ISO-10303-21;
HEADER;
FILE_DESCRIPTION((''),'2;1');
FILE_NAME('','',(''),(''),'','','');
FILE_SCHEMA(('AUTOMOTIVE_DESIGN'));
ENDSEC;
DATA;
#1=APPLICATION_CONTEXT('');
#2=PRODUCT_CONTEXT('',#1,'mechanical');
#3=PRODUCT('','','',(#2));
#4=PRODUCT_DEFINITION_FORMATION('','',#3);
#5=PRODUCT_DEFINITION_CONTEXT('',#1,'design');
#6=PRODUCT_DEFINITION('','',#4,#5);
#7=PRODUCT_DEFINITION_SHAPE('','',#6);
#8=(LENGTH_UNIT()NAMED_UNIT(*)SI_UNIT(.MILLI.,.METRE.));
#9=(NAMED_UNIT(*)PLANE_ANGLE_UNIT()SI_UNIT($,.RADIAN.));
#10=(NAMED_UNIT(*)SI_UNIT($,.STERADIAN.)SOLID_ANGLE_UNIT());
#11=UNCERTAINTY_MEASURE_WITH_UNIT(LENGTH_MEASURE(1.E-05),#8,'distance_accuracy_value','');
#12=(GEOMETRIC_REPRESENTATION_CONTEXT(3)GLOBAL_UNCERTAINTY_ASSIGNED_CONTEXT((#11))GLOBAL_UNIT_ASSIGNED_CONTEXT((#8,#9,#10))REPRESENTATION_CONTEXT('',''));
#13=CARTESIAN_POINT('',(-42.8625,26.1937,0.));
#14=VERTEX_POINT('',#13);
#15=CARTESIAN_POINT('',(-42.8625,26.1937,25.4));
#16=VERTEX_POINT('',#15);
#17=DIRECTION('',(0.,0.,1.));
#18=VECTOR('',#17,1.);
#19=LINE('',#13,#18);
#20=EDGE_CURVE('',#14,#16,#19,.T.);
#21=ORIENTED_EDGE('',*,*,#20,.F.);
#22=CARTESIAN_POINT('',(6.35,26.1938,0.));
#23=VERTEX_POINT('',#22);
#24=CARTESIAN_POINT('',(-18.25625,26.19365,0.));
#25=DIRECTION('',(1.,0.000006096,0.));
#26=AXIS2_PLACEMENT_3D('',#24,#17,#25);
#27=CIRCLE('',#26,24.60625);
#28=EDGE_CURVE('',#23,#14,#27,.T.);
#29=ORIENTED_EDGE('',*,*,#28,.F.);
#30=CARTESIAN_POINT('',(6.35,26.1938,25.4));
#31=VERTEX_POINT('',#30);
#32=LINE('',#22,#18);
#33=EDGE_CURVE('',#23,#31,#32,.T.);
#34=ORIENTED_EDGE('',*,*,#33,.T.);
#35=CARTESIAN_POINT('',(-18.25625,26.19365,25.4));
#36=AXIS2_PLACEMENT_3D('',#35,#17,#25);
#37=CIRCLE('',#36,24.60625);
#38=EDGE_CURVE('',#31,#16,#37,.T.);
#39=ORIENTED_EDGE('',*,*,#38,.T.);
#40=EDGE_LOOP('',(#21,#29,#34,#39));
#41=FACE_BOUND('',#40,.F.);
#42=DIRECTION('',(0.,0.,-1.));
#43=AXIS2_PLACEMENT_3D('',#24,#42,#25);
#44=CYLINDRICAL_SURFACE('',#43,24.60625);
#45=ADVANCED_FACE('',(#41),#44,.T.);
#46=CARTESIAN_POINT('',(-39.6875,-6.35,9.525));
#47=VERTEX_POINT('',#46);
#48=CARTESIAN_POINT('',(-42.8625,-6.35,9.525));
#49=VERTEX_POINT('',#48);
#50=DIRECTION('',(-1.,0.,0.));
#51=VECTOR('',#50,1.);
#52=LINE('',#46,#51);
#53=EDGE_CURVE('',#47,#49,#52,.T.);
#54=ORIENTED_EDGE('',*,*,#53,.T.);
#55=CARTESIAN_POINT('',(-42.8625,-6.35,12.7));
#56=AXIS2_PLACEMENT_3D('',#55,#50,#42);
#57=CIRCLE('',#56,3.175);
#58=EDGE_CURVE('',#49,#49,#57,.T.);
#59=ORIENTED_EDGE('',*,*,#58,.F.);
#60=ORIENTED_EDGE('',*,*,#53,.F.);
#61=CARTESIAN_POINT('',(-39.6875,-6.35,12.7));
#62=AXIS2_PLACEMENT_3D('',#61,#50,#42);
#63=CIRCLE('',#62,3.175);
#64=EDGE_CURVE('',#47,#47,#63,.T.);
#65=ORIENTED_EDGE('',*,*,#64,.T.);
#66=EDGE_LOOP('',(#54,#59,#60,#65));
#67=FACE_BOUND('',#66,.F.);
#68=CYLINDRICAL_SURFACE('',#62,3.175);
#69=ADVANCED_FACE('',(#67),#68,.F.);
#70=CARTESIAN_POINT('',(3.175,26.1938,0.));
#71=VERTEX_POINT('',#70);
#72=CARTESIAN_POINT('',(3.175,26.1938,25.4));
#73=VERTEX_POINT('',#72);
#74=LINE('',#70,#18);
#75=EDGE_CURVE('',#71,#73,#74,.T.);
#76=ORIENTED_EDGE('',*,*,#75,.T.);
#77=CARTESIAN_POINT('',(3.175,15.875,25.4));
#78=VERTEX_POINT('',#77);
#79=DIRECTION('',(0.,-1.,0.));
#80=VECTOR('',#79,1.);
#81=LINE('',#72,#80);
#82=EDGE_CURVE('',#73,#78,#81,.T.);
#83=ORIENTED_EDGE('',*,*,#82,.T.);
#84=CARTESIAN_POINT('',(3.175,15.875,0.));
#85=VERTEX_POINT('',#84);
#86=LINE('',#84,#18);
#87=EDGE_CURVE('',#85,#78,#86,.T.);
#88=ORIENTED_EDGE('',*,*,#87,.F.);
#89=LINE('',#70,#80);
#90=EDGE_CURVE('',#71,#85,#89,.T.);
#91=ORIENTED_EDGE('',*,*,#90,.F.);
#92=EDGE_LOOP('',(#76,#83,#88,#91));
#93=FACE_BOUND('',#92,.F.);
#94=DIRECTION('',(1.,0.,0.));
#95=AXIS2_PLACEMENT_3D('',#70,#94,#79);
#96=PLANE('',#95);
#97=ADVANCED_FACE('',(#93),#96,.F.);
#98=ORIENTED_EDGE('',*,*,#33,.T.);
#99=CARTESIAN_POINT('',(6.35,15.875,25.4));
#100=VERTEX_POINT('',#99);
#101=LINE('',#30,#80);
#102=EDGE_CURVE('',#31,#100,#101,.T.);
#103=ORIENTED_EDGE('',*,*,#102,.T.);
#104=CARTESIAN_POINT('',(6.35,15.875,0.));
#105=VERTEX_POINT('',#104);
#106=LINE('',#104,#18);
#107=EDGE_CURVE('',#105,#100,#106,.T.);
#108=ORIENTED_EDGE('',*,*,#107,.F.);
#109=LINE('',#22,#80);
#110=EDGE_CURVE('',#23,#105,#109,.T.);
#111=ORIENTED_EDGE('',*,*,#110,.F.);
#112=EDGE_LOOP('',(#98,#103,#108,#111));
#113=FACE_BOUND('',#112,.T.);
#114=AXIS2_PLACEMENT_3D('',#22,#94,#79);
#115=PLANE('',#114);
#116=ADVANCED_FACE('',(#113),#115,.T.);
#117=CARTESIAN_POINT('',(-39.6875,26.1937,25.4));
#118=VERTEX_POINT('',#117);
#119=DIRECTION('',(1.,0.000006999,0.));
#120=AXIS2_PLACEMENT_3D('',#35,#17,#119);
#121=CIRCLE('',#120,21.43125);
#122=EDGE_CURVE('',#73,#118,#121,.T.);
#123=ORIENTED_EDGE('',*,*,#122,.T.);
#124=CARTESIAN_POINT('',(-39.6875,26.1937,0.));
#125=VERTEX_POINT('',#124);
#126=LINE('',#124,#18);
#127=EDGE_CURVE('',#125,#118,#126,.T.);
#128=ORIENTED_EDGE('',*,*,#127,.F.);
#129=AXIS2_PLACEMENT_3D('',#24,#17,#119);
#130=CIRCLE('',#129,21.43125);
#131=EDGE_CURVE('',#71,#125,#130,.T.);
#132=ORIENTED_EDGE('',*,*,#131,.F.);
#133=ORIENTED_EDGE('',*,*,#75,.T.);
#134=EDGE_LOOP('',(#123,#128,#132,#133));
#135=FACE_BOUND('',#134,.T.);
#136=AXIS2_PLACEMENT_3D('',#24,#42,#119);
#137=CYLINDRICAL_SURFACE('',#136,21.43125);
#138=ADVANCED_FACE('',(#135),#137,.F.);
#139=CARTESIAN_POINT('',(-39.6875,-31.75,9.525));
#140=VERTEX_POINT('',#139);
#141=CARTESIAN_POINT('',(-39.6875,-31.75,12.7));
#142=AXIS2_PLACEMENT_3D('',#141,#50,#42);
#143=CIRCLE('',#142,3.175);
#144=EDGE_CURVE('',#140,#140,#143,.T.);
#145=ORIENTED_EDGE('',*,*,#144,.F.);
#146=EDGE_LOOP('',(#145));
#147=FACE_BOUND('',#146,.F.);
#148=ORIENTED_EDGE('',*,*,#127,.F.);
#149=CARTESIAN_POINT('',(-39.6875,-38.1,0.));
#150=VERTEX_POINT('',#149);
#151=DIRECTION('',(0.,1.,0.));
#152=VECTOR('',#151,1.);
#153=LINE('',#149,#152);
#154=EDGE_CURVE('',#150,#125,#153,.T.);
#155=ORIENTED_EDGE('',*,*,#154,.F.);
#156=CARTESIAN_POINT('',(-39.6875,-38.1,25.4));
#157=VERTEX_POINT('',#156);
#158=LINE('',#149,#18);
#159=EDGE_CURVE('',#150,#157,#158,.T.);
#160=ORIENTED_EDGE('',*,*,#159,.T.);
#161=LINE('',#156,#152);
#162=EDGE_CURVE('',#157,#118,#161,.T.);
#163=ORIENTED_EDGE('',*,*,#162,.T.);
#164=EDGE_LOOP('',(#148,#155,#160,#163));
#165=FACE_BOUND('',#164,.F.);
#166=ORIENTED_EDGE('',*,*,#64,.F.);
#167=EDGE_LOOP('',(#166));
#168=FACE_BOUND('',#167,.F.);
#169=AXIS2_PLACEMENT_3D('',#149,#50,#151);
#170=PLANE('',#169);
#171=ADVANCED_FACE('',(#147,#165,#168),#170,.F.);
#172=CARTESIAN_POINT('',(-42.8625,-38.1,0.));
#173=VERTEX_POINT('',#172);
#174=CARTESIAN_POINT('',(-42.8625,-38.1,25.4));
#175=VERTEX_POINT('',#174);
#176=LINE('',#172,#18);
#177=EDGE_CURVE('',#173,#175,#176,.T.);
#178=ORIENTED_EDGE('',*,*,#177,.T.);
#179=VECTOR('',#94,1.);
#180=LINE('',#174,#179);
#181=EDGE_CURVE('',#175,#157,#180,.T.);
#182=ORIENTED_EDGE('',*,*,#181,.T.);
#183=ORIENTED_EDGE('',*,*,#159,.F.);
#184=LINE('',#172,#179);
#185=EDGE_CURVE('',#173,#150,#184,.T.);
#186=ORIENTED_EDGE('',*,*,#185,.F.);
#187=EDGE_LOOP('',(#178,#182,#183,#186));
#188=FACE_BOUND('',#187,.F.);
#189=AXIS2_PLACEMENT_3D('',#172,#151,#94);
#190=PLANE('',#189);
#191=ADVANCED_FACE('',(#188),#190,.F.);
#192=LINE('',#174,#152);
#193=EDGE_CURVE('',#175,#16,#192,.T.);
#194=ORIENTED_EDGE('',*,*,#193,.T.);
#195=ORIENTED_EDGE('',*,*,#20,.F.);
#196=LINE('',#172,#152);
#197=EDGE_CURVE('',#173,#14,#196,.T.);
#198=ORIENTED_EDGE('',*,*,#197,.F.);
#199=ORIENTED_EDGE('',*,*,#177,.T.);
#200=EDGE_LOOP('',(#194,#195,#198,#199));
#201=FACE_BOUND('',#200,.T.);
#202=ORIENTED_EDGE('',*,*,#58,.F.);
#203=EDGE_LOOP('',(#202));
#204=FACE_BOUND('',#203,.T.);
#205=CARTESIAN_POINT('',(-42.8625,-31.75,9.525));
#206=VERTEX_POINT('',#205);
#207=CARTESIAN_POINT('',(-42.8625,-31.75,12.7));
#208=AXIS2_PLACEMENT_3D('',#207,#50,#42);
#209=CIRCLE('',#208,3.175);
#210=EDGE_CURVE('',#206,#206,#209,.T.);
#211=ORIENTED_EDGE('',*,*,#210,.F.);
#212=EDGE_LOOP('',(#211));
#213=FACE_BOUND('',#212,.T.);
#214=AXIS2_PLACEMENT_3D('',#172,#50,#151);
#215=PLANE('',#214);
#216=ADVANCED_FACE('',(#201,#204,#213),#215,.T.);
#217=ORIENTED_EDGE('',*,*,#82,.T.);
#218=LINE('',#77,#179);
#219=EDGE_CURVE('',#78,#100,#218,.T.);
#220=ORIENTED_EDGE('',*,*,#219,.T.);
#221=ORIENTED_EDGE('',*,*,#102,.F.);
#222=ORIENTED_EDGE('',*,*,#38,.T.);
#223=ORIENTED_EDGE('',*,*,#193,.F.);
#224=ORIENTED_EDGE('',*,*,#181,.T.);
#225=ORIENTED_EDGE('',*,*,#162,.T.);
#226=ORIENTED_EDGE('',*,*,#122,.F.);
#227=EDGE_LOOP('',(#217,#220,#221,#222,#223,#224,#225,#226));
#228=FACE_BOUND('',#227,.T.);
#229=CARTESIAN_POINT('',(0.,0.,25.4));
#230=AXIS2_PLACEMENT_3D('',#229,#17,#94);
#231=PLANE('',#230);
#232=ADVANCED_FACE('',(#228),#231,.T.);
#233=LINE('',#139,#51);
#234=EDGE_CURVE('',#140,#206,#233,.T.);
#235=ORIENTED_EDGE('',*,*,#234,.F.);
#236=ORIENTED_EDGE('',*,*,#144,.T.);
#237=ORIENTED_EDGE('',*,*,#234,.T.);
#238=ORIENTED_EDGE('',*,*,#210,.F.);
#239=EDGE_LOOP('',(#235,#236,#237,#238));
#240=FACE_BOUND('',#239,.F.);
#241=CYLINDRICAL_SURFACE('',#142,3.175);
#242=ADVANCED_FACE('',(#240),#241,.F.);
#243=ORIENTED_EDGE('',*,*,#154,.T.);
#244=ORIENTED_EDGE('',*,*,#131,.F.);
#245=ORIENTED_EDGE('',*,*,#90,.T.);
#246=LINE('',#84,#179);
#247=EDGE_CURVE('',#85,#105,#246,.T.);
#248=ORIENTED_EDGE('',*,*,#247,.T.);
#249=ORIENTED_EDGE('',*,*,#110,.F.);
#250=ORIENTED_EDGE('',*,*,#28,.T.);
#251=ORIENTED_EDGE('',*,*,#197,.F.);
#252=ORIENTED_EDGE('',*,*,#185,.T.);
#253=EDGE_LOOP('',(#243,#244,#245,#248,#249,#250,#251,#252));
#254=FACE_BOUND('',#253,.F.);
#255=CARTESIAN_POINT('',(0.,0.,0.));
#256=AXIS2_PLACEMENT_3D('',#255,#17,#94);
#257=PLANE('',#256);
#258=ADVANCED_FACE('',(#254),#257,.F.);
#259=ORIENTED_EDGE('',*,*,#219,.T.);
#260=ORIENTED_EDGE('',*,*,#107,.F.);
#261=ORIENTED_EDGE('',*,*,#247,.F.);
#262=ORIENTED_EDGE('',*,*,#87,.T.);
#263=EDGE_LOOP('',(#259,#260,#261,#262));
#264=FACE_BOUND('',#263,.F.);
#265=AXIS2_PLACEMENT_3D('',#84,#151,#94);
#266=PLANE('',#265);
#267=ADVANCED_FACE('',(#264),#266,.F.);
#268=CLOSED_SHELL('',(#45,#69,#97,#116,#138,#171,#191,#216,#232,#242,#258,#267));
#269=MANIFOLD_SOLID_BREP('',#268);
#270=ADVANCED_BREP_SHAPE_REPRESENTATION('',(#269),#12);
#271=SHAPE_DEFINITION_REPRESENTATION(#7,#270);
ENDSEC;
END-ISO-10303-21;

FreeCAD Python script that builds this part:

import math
import FreeCAD as App
import Part
import Sketcher
Q = App.Units.Quantity

doc = App.newDocument("Part")
body = doc.addObject("PartDesign::Body", "Body")

# Sketch on XY plane
sketch1 = body.newObject("Sketcher::SketchObject", "Sketch")
sketch1.AttachmentSupport = (doc.getObject("XY_Plane"), [""])
sketch1.MapMode = "FlatFace"
sketch1.addGeometry([
    Part.LineSegment(App.Vector(-42.9, 26.2, 0), App.Vector(-42.9, -38.1, 0)),  # 0
    Part.LineSegment(App.Vector(-42.9, -38.1, 0), App.Vector(-39.7, -38.1, 0)),  # 1
    Part.LineSegment(App.Vector(-39.7, -38.1, 0), App.Vector(-39.7, 26.2, 0)),  # 2
    Part.ArcOfCircle(Part.Circle(App.Vector(-18.3, 26.2, 0), App.Vector(0, 0, 1), 21.4), math.radians(0), math.radians(180)),  # 3
    Part.LineSegment(App.Vector(3.2, 26.2, 0), App.Vector(3.2, 15.9, 0)),  # 4
    Part.LineSegment(App.Vector(3.2, 15.9, 0), App.Vector(6.3, 15.9, 0)),  # 5
    Part.LineSegment(App.Vector(6.3, 15.9, 0), App.Vector(6.3, 26.2, 0)),  # 6
    Part.ArcOfCircle(Part.Circle(App.Vector(-18.3, 26.2, 0), App.Vector(0, 0, 1), 24.6), math.radians(0), math.radians(180)),  # 7
], False)
sketch1.addConstraint([
    Sketcher.Constraint("Coincident", 0, 2, 1, 1),
    Sketcher.Constraint("Coincident", 1, 2, 2, 1),
    Sketcher.Constraint("Tangent", 2, 2, 3, 2),
    Sketcher.Constraint("Tangent", 3, 1, 4, 1),
    Sketcher.Constraint("Coincident", 4, 2, 5, 1),
    Sketcher.Constraint("Coincident", 5, 2, 6, 1),
    Sketcher.Constraint("Tangent", 6, 2, 7, 1),
    Sketcher.Constraint("Tangent", 7, 2, 0, 1),
    Sketcher.Constraint("Vertical", 0),
    Sketcher.Constraint("Horizontal", 1),
    Sketcher.Constraint("Vertical", 2),
    Sketcher.Constraint("Vertical", 4),
    Sketcher.Constraint("Horizontal", 5),
    Sketcher.Constraint("Vertical", 6),
    Sketcher.Constraint("Coincident", 7, 3, 3, 3),
    Sketcher.Constraint("Radius", 3, Q("0.843748 in")),
    Sketcher.Constraint("DistanceX", 1, 1, 1, 2, Q("0.125 in")),
    Sketcher.Constraint("DistanceX", -1, 1, 3, 1, Q("0.125 in")),
    Sketcher.Constraint("DistanceY", 0, 2, -1, 1, Q("1.5 in")),
    Sketcher.Constraint("DistanceY", 0, 2, 0, 1, Q("2.531248 in")),
    Sketcher.Constraint("DistanceY", 4, 2, 4, 1, Q("0.406252 in")),
])
pad1 = body.newObject("PartDesign::Pad", "Pad")
pad1.Profile = sketch1
pad1.Length = Q("1 in")

# Sketch on YZ plane
sketch2 = body.newObject("Sketcher::SketchObject", "Sketch001")
sketch2.AttachmentSupport = (doc.getObject("YZ_Plane"), [""])
sketch2.MapMode = "FlatFace"
sketch2.AttachmentOffset = App.Placement(App.Vector(0, 0, -1.5625 * 25.4), App.Rotation())
sketch2.addGeometry(Part.Circle(App.Vector(-31.8, 12.7, 0), App.Vector(0, 0, 1), 3.2), False)
sketch2.addConstraint([
    Sketcher.Constraint("Diameter", 0, Q("0.25 in")),
    Sketcher.Constraint("DistanceY", -1, 1, 0, 3, Q("0.5 in")),
    Sketcher.Constraint("DistanceX", 0, 3, -1, 1, Q("1.25 in")),
])
doc.recompute()
hole = body.newObject("PartDesign::Hole", "Hole")
hole.Profile = sketch2
hole.ThreadType = "None"
hole.Diameter = Q("0.25 in")
hole.DepthType = "ThroughAll"
doc.recompute()

linearpattern = body.newObject("PartDesign::LinearPattern", "LinearPattern")
linearpattern.Originals = [hole]
linearpattern.Direction = (doc.getObject("Y_Axis"), [""])
linearpattern.Mode = "offset"
linearpattern.Offset = Q("1 in")
linearpattern.Occurrences = 2
body.Tip = linearpattern

doc.recompute()
